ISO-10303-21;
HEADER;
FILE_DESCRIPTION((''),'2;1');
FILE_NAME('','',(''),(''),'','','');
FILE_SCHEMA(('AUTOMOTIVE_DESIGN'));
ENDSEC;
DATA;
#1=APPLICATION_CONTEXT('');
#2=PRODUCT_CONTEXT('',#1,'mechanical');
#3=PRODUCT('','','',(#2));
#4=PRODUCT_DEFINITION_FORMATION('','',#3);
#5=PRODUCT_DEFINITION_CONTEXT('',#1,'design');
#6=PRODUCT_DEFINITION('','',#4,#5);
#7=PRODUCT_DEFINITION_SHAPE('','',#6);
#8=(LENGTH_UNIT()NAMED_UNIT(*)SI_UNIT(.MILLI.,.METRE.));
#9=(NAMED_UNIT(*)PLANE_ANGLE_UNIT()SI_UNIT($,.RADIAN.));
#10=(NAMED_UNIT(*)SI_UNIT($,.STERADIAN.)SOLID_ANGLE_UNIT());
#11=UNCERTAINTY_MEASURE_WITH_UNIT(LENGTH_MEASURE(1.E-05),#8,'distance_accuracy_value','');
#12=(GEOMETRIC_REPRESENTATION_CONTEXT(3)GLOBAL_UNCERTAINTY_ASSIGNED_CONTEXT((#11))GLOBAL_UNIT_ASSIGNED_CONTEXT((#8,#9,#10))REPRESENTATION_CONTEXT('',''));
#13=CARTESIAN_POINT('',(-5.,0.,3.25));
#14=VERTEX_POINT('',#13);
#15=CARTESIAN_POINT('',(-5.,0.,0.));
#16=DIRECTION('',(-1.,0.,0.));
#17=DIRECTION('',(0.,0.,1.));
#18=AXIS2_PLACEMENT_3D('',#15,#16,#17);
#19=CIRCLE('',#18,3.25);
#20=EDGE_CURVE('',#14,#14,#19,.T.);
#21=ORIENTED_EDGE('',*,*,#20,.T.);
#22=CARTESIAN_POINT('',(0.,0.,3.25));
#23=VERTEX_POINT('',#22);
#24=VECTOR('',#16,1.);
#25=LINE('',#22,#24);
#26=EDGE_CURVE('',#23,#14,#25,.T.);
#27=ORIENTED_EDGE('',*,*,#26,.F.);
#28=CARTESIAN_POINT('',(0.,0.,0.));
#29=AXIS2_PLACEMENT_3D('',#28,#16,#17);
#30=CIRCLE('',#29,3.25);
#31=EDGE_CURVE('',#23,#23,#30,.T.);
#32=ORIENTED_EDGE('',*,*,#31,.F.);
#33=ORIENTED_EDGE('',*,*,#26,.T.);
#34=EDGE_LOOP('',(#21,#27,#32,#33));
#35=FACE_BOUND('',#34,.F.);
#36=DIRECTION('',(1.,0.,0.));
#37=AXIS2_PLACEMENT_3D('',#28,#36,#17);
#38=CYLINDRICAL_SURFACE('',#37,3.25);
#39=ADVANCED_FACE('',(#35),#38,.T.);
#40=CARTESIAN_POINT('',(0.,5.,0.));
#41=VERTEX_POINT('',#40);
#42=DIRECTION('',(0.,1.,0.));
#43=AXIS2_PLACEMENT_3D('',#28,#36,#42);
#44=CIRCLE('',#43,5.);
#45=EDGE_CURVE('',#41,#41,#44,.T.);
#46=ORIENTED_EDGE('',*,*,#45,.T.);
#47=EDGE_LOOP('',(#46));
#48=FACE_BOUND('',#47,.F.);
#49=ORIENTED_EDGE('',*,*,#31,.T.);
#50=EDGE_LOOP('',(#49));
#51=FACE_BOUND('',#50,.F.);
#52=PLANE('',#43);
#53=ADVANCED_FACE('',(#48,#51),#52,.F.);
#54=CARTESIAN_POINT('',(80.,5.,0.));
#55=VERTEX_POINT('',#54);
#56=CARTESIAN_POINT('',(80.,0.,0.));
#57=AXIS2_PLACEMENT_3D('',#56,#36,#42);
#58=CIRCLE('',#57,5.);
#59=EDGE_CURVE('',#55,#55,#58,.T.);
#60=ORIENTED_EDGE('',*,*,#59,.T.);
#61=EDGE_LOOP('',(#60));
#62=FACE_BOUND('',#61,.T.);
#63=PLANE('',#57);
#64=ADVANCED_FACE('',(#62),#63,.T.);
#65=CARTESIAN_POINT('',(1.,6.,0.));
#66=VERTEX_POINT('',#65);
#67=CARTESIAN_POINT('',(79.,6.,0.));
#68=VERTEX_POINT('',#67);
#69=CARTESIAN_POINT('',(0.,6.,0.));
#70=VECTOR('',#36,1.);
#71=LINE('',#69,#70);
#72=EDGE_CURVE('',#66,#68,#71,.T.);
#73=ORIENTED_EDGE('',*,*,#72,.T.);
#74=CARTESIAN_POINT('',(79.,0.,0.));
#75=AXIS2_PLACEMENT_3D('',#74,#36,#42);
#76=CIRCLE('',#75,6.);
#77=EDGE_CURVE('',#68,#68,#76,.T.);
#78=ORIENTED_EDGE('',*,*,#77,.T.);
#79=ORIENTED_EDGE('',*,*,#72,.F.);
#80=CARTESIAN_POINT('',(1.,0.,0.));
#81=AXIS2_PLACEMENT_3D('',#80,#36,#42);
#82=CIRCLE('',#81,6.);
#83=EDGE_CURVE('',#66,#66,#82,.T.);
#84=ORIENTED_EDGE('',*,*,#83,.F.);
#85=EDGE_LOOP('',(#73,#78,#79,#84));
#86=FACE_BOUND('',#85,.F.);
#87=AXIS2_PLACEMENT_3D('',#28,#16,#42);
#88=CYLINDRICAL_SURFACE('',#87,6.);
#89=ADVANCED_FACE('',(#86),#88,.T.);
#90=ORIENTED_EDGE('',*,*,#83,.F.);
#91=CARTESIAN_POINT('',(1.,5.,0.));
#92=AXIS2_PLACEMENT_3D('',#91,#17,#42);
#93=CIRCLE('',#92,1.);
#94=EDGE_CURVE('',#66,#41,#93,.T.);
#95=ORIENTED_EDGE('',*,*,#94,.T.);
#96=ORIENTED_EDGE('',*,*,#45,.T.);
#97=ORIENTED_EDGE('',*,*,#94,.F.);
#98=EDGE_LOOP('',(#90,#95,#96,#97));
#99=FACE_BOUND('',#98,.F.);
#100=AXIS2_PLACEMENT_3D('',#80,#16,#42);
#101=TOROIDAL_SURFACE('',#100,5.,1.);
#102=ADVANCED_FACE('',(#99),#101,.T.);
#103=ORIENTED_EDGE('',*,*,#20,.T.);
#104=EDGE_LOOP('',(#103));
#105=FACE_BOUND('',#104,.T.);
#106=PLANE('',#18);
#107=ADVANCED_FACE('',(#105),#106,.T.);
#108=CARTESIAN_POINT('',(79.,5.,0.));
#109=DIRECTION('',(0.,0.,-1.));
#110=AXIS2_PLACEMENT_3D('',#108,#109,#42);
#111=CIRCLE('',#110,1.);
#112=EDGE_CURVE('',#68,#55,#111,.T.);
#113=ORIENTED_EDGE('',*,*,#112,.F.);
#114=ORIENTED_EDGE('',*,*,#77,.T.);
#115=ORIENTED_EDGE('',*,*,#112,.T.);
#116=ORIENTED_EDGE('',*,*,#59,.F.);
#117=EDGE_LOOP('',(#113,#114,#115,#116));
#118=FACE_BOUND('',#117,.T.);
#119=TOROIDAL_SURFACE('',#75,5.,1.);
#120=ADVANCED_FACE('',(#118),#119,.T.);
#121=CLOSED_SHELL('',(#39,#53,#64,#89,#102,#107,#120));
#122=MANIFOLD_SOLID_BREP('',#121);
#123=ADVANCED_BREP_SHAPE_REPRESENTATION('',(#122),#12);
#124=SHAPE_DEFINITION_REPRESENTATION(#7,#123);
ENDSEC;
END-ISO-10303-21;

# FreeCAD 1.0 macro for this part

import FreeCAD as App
import Part
import Sketcher


def edges_at(feature, points):
    """Names of the edges that pass closest to the given points."""
    edges = feature.Shape.Edges
    near = lambda p: min(range(len(edges)), key=lambda i: edges[i].distToShape(Part.Vertex(*p))[0])
    return sorted({f"Edge{near(p) + 1}" for p in points})

doc = App.newDocument("Part")
body = doc.addObject("PartDesign::Body", "Body")

# Sketch on YZ plane
sketch1 = body.newObject("Sketcher::SketchObject", "Sketch")
sketch1.AttachmentSupport = (doc.getObject("YZ_Plane"), [""])
sketch1.MapMode = "FlatFace"
sketch1.addGeometry(Part.Circle(App.Vector(0, 0, 0), App.Vector(0, 0, 1), 6), False)
sketch1.addConstraint([
    Sketcher.Constraint("Coincident", 0, 3, -1, 1),
    Sketcher.Constraint("Diameter", 0, 12.0),
])
pad1 = body.newObject("PartDesign::Pad", "Pad")
pad1.Profile = sketch1
pad1.Length = 80

# Sketch on YZ plane
sketch2 = body.newObject("Sketcher::SketchObject", "Sketch001")
sketch2.AttachmentSupport = (doc.getObject("YZ_Plane"), [""])
sketch2.MapMode = "FlatFace"
sketch2.addGeometry(Part.Circle(App.Vector(0, 0, 0), App.Vector(0, 0, 1), 3.25), False)
sketch2.addConstraint([
    Sketcher.Constraint("Coincident", 0, 3, -1, 1),
    Sketcher.Constraint("Diameter", 0, 6.5),
])
pad2 = body.newObject("PartDesign::Pad", "Pad001")
pad2.Profile = sketch2
pad2.Length = 5
pad2.Reversed = True
doc.recompute()

fillet = body.newObject("PartDesign::Fillet", "Fillet")
fillet.Base = (pad2, edges_at(pad2, [(0, -6, 0)]))
fillet.Radius = 1
doc.recompute()

fillet2 = body.newObject("PartDesign::Fillet", "Fillet001")
fillet2.Base = (fillet, edges_at(fillet, [(80, -6, 0)]))
fillet2.Radius = 1

doc.recompute()
